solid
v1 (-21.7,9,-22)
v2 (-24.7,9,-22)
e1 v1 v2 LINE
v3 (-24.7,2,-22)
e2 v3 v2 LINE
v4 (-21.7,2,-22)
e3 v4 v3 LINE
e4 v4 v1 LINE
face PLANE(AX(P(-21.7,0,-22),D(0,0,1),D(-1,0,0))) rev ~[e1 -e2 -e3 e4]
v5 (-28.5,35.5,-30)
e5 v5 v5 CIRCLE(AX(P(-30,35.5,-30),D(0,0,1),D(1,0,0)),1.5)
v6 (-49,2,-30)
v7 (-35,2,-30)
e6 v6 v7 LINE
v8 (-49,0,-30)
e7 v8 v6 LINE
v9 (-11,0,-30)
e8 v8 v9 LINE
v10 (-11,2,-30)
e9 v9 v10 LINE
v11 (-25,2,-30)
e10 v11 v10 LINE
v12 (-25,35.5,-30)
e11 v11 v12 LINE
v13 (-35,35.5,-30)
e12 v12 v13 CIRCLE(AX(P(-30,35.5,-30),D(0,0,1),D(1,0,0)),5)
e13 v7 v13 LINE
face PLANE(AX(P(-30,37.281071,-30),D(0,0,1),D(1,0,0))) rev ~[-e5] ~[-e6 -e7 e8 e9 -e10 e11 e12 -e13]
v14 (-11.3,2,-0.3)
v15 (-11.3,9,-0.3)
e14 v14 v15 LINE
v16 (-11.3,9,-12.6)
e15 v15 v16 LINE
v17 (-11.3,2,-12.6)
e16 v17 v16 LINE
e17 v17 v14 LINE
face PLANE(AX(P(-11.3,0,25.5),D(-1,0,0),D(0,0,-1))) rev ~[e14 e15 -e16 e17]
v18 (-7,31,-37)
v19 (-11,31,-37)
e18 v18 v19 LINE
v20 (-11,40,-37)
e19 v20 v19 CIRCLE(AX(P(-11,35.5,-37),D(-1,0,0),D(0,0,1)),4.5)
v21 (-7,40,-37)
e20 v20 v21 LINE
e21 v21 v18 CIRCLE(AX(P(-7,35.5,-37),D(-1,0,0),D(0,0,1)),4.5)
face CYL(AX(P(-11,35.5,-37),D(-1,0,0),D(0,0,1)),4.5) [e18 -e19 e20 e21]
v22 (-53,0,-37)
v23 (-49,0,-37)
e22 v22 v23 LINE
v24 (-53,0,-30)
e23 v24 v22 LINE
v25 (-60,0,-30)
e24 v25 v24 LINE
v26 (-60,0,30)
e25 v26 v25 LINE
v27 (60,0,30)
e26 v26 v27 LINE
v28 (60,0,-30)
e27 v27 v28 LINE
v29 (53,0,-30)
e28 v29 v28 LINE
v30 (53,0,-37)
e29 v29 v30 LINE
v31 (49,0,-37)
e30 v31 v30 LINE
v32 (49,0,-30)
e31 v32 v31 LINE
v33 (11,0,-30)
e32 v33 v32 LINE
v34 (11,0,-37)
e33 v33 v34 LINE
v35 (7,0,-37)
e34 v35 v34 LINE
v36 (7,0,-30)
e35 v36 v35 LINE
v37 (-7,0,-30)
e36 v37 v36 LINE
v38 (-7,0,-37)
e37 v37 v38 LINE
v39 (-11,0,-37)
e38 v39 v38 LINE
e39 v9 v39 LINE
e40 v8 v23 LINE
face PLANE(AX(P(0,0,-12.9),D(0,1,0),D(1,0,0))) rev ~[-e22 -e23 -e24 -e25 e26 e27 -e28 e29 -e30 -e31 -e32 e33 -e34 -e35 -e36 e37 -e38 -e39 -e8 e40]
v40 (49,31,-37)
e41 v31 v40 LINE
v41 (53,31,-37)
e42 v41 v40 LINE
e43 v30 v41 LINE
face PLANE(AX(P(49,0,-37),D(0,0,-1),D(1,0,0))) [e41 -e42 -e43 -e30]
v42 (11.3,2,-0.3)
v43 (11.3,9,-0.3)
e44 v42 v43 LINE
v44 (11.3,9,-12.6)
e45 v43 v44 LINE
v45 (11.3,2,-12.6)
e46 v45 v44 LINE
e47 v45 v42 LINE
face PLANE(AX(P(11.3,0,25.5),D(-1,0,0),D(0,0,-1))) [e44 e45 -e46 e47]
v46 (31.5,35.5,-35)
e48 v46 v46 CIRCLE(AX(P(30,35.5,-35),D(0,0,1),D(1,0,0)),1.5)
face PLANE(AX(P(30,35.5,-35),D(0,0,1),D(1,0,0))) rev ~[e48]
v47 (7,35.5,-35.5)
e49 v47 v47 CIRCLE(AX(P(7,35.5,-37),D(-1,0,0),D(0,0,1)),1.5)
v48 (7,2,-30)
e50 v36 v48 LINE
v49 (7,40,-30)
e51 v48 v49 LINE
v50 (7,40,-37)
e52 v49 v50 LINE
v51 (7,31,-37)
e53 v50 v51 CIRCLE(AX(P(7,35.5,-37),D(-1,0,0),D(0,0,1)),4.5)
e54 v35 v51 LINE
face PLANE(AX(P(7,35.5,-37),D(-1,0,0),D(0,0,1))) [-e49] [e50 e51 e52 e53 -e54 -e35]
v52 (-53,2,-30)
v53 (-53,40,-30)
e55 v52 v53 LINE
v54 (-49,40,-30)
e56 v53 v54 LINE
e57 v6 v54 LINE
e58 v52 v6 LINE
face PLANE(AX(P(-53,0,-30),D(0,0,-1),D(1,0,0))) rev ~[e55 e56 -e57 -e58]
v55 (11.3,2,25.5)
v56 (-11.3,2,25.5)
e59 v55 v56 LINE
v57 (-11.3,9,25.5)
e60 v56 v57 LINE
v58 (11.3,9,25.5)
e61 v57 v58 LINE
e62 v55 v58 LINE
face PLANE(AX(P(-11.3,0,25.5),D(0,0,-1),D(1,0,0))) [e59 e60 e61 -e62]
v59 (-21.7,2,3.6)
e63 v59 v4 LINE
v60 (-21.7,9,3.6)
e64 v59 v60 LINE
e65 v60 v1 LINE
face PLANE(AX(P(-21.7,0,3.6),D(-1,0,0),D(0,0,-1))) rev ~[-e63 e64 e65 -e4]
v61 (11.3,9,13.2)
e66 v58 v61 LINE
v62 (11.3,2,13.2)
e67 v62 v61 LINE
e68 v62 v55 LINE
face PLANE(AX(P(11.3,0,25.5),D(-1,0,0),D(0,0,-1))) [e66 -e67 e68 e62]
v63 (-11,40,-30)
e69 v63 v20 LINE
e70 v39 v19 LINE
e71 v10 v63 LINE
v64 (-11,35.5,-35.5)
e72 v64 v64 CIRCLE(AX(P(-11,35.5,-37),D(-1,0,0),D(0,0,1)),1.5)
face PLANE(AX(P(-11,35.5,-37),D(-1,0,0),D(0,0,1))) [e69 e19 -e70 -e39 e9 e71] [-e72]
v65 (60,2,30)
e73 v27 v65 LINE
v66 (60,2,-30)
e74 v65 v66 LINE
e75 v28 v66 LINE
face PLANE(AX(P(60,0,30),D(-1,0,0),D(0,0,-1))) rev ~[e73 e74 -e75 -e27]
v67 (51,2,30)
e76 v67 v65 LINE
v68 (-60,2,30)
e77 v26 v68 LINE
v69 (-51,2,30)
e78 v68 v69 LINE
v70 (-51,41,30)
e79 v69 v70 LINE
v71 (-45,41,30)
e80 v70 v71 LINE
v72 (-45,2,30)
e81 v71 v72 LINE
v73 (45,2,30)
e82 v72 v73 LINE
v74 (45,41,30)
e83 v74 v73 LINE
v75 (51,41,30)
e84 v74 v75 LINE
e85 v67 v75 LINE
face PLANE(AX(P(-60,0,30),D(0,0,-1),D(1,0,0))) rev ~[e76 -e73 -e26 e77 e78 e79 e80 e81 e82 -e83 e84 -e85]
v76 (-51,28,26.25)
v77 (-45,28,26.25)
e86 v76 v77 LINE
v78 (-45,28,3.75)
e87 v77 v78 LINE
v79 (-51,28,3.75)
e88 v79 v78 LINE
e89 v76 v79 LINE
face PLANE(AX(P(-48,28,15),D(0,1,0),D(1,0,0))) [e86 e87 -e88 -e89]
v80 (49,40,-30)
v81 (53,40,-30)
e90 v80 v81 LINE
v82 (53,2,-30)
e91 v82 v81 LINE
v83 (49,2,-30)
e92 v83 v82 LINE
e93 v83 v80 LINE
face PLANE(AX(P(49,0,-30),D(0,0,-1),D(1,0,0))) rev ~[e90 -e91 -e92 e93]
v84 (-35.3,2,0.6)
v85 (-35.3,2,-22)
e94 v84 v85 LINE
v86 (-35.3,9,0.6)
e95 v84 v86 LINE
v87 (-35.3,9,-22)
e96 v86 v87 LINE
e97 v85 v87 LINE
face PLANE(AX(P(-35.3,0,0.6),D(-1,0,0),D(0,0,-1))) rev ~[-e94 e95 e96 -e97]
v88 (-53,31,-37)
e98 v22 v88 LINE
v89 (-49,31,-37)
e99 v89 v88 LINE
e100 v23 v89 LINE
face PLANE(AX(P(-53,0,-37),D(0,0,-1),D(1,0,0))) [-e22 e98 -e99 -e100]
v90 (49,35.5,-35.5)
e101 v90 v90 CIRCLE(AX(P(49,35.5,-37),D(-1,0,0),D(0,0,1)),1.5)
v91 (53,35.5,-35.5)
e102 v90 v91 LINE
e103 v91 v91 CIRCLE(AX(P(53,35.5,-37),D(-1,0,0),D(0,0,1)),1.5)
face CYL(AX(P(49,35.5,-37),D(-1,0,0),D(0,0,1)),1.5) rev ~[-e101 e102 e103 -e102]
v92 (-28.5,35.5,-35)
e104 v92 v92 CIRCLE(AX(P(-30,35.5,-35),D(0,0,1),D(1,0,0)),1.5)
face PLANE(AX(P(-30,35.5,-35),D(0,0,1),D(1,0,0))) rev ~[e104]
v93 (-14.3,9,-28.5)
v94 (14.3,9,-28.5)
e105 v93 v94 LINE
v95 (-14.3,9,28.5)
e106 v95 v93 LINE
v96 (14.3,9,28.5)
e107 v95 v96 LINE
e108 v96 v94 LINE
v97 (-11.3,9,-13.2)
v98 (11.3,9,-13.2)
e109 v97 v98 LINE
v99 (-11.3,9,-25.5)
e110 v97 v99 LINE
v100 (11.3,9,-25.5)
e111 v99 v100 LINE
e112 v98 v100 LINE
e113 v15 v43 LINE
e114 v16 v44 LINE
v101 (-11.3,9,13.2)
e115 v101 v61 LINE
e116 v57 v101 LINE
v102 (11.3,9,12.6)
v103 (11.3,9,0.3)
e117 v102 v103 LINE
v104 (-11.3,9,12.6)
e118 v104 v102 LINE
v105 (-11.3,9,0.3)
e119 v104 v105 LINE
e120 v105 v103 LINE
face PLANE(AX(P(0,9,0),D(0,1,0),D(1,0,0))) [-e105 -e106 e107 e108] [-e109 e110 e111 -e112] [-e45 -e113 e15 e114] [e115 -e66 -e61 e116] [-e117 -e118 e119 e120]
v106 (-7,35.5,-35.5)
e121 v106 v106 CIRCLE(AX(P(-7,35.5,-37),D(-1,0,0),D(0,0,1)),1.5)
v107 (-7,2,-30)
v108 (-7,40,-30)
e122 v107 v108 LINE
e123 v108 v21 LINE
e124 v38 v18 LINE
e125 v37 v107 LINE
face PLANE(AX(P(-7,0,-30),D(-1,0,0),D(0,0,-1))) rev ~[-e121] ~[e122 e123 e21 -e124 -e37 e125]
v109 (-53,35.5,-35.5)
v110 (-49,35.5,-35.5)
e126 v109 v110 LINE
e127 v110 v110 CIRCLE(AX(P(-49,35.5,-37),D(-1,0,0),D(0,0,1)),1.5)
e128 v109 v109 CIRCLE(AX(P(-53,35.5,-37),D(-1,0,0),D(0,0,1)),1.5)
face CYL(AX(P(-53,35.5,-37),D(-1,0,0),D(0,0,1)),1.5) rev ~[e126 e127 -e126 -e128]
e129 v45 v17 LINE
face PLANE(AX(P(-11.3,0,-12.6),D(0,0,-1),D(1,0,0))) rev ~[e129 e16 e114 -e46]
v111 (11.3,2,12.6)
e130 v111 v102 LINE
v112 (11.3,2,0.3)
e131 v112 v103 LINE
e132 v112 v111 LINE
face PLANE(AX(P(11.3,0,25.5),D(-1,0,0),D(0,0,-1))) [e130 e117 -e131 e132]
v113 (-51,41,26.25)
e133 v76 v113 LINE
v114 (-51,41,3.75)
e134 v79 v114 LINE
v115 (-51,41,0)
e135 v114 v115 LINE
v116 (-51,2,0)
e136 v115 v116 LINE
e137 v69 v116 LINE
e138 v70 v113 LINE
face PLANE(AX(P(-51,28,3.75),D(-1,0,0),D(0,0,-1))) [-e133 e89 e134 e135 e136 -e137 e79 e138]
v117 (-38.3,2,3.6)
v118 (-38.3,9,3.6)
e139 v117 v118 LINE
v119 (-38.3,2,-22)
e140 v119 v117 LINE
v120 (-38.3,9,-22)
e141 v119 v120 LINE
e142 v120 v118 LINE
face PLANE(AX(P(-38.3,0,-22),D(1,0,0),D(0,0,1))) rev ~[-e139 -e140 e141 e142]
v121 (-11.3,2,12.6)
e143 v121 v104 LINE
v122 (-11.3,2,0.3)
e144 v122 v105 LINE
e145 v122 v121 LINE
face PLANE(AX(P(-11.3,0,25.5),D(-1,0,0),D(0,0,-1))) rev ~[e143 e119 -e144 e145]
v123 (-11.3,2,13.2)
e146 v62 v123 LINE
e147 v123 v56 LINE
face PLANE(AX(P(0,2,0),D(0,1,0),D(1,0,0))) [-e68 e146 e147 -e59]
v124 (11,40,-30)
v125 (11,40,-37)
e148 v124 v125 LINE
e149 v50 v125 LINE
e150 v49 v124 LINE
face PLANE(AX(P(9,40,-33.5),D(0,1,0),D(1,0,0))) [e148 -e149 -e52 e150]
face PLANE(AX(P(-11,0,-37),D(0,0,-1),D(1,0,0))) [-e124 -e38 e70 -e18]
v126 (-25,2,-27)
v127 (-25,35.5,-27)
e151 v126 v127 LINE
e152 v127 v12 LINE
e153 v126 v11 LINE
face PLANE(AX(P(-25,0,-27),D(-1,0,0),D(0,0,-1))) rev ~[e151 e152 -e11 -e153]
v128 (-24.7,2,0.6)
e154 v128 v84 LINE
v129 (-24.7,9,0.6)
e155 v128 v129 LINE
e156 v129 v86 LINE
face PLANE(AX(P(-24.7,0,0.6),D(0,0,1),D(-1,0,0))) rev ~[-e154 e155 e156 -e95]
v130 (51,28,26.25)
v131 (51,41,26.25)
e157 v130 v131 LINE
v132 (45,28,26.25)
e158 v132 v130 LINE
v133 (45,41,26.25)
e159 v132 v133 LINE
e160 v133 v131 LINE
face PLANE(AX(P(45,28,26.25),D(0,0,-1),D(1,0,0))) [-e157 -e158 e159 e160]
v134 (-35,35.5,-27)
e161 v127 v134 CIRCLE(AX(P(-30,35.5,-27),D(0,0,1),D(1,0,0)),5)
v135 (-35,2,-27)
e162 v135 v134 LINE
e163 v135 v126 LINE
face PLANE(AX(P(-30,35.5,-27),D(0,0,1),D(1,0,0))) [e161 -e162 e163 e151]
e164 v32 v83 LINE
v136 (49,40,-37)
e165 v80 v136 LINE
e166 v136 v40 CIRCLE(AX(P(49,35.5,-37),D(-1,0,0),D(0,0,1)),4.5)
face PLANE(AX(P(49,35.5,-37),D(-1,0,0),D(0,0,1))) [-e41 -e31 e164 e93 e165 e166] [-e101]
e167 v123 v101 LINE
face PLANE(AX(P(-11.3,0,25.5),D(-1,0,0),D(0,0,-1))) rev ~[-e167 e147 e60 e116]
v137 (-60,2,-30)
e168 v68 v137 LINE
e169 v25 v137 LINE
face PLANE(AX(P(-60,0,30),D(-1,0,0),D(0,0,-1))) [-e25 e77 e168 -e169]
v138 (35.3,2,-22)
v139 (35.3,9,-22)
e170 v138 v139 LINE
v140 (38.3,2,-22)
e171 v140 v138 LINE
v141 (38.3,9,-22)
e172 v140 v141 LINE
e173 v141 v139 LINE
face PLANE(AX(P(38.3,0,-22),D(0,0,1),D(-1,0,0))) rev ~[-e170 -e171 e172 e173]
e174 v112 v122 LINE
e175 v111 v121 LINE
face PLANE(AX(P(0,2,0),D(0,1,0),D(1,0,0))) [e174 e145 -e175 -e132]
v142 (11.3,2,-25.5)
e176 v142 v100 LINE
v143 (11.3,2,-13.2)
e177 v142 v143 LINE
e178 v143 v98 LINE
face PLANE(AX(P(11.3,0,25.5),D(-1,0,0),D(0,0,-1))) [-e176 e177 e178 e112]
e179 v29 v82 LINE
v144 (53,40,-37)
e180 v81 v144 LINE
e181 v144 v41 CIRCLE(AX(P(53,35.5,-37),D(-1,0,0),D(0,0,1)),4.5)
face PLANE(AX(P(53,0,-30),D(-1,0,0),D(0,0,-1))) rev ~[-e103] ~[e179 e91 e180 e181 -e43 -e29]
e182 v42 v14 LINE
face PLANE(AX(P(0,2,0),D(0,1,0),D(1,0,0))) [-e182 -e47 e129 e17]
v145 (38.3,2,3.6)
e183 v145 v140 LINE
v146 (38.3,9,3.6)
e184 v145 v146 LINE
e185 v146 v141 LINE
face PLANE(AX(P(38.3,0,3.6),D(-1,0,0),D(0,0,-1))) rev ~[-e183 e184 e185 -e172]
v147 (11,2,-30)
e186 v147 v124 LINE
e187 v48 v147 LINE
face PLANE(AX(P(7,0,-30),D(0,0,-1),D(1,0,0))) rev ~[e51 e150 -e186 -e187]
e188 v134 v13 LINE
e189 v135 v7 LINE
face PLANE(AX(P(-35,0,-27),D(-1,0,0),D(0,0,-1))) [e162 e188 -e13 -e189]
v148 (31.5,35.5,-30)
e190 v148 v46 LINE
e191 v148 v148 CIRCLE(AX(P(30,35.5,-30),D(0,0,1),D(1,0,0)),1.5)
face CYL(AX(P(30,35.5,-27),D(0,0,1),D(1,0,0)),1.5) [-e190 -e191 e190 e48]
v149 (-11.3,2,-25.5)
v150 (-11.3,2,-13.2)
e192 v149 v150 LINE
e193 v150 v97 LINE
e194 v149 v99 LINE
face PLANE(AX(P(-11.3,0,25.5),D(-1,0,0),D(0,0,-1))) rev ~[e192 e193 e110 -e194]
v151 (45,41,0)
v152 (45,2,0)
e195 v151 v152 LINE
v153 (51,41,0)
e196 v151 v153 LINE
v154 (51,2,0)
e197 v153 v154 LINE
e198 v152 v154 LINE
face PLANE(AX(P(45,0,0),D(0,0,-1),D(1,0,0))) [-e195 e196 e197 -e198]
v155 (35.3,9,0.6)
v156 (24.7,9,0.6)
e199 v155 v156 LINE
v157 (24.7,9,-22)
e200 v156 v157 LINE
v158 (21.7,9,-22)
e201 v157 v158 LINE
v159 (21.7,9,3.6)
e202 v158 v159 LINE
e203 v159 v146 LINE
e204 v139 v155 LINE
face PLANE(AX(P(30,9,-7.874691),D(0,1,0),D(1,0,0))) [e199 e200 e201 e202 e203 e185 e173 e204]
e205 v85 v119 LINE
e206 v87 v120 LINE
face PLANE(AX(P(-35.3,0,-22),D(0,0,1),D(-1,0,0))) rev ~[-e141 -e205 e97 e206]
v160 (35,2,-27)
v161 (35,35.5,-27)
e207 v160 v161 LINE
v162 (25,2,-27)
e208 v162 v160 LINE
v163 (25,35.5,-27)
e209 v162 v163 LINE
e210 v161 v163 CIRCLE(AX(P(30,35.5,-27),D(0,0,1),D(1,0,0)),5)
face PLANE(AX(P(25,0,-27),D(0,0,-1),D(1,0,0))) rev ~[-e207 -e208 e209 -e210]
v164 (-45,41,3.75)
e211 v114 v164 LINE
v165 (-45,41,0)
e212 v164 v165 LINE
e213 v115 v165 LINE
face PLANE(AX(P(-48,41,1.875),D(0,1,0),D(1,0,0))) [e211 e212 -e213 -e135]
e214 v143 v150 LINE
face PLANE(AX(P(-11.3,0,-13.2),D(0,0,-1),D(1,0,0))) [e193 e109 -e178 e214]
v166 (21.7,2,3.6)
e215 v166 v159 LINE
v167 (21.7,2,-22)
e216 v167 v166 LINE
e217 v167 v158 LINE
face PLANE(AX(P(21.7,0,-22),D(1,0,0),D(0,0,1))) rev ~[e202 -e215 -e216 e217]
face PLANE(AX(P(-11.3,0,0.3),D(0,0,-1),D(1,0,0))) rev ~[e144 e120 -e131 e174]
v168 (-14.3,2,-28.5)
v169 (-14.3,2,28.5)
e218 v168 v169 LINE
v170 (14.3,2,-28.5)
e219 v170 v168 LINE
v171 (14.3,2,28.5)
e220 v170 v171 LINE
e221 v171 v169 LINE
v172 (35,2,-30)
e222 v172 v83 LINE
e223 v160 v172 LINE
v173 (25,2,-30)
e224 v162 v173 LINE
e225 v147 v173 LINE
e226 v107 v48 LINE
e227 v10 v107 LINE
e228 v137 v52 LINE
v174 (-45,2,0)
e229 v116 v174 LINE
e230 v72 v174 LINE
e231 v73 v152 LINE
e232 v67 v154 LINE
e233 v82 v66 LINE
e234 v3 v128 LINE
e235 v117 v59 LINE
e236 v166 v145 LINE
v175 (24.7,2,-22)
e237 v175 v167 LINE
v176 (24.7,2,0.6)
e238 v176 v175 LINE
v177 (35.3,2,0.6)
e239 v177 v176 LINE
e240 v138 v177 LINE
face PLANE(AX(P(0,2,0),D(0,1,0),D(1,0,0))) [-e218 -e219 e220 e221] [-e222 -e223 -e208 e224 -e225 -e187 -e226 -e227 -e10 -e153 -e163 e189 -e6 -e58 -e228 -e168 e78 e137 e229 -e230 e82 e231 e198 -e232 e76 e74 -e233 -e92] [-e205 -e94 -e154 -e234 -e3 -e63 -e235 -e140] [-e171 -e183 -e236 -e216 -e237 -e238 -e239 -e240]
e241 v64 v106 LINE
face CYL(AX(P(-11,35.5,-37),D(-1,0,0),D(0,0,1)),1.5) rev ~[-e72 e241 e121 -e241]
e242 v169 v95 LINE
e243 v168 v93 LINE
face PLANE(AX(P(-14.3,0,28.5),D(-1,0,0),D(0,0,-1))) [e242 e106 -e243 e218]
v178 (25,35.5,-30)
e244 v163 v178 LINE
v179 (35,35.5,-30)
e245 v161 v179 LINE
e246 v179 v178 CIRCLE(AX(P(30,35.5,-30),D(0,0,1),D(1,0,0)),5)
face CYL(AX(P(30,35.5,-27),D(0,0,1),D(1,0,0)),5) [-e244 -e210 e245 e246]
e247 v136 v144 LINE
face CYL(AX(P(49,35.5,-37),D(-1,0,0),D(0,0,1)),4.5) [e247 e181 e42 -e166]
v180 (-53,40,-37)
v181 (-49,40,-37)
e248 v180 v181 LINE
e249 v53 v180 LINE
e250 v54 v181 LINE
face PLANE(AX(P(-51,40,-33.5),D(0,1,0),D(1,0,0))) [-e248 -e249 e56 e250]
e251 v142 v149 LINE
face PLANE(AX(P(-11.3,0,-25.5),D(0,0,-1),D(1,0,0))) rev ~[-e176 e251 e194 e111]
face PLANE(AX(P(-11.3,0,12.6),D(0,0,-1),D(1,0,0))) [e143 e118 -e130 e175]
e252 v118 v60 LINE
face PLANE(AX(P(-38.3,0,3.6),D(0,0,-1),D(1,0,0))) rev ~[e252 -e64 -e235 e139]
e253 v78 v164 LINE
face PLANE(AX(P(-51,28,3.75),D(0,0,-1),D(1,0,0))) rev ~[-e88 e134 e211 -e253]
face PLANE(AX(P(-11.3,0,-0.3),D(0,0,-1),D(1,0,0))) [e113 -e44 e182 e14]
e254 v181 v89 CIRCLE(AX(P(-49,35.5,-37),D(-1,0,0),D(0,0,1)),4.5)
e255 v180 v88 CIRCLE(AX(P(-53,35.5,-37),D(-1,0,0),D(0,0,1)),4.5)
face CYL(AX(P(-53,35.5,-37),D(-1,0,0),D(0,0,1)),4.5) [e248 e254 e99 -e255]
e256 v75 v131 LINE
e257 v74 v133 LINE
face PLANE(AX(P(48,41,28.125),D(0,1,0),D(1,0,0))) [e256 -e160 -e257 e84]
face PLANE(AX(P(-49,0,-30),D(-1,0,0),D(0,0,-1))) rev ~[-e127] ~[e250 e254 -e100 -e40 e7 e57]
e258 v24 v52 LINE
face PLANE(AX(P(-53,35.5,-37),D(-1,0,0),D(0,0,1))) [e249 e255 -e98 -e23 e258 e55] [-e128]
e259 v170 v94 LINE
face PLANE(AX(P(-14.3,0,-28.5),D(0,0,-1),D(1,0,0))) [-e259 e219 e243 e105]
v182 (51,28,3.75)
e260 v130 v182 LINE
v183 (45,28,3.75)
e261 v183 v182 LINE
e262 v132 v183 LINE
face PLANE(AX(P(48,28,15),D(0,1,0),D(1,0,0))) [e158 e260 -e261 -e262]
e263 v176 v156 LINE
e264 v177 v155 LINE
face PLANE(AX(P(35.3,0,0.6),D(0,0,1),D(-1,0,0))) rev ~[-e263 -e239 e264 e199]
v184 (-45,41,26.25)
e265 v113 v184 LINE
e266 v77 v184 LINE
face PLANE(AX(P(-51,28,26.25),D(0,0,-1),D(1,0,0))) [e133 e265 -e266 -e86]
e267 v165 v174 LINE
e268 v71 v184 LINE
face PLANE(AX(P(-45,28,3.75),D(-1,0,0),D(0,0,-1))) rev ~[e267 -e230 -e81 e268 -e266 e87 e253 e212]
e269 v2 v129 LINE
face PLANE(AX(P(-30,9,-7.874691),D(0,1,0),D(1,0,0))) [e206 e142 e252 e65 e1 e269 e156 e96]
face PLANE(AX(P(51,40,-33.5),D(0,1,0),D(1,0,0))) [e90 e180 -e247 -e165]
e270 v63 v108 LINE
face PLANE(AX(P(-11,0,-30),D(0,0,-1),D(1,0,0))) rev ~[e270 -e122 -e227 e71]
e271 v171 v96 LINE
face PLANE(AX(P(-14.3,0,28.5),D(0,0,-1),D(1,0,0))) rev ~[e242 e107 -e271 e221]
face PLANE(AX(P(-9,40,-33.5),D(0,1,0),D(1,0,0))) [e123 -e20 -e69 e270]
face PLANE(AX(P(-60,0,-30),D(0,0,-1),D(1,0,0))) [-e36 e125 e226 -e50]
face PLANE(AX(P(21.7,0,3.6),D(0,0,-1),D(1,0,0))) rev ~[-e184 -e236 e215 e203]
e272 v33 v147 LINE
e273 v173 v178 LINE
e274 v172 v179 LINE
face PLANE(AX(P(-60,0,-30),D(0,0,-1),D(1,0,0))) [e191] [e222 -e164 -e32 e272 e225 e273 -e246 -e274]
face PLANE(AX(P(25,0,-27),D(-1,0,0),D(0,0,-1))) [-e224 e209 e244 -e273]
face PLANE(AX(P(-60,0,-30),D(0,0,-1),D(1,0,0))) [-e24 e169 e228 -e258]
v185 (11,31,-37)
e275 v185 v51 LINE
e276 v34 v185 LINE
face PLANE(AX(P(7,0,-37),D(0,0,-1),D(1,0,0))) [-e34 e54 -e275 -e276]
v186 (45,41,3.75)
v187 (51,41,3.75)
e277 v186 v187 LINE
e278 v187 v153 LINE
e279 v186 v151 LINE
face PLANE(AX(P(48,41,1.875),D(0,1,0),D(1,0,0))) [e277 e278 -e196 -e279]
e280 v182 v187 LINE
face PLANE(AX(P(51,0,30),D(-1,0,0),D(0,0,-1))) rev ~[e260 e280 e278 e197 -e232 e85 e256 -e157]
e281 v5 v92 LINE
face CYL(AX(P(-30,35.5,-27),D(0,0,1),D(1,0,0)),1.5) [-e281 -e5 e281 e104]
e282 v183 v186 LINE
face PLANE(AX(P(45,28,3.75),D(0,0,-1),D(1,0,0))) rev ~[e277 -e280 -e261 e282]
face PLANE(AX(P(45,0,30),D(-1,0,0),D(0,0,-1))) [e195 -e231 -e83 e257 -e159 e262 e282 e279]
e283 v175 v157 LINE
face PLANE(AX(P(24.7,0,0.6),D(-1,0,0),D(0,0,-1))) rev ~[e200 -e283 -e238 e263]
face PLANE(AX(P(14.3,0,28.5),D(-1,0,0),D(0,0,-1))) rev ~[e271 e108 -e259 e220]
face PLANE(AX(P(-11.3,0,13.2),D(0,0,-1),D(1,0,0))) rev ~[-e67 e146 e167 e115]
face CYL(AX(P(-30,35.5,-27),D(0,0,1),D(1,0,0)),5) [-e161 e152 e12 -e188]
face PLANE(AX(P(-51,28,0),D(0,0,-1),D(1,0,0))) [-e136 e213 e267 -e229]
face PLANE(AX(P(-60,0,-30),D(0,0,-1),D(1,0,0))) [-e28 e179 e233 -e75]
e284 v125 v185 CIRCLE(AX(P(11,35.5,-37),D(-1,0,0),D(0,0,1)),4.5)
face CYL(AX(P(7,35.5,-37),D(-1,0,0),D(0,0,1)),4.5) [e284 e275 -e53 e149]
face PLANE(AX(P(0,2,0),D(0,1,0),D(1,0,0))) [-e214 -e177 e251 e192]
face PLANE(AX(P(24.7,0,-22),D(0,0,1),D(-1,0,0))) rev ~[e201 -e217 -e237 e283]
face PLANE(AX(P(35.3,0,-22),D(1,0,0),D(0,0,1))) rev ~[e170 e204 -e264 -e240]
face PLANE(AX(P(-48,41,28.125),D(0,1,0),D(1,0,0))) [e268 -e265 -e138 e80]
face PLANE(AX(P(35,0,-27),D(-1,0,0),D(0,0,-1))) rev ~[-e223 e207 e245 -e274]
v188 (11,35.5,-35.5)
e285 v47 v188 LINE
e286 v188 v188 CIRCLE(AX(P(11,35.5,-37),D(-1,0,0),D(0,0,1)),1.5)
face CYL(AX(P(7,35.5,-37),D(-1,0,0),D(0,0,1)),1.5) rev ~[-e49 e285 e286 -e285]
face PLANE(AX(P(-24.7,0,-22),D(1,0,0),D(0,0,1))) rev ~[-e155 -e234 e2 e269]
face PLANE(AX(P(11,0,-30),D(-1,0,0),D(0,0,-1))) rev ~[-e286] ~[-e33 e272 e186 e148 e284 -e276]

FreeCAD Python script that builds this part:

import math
import FreeCAD as App
import Part
import Sketcher
from FreeCAD import Vector


def add_polygon(sketch, points):
    """Adds a closed chain of lines whose ends are joined by coincident constraints."""
    first, n = sketch.GeometryCount, len(points)
    for a, b in zip(points, points[1:] + points[:1]):
        sketch.addGeometry(Part.LineSegment(App.Vector(*a, 0), App.Vector(*b, 0)), False)
    for i in range(n):
        sketch.addConstraint(Sketcher.Constraint("Coincident", first + i, 2, first + (i + 1) % n, 1))

doc = App.newDocument("Part")
body = doc.addObject("PartDesign::Body", "Body")

sketch1 = body.newObject("Sketcher::SketchObject", "Sketch")
sketch1.AttachmentSupport = (doc.getObject("XZ_Plane"), [""])
sketch1.MapMode = "FlatFace"
add_polygon(sketch1, [(24.7, 0.6), (24.7, -22), (21.7, -22), (21.7, 3.6), (38.3, 3.6), (38.3, -22), (35.3, -22), (35.3, 0.6)])
sketch1.addConstraint(Sketcher.Constraint("Vertical", 0))
sketch1.addConstraint(Sketcher.Constraint("Horizontal", 1))
sketch1.addConstraint(Sketcher.Constraint("Vertical", 2))
sketch1.addConstraint(Sketcher.Constraint("Horizontal", 3))
sketch1.addConstraint(Sketcher.Constraint("Vertical", 4))
sketch1.addConstraint(Sketcher.Constraint("Horizontal", 5))
sketch1.addConstraint(Sketcher.Constraint("Vertical", 6))
sketch1.addConstraint(Sketcher.Constraint("Horizontal", 7))
sketch1.addConstraint(Sketcher.Constraint("Horizontal", 1, 2, 4, 2))
sketch1.addConstraint(Sketcher.Constraint("Equal", 1, 5))
sketch1.addConstraint(Sketcher.Constraint("DistanceX", 1, 2, 1, 1, 3.0))
sketch1.addConstraint(Sketcher.Constraint("DistanceX", 3, 1, 3, 2, 16.6))
sketch1.addConstraint(Sketcher.Constraint("DistanceY", 0, 2, 0, 1, 22.6))
sketch1.addConstraint(Sketcher.Constraint("DistanceY", 2, 1, 2, 2, 25.6))
sketch1.addConstraint(Sketcher.Constraint("DistanceY", 0, 2, -1, 1, 22.0))
sketch1.addConstraint(Sketcher.Constraint("DistanceX", -1, 1, 0, 2, 24.7))
pad1 = body.newObject("PartDesign::Pad", "Pad")
pad1.Profile = sketch1
pad1.Length = 9
pad1.Reversed = True
body2 = doc.addObject("PartDesign::Body", "Body001")

sketch2 = body2.newObject("Sketcher::SketchObject", "Sketch001")
sketch2.AttachmentSupport = (doc.getObject("XZ_Plane001"), [""])
sketch2.MapMode = "FlatFace"
add_polygon(sketch2, [(-35.3, -22), (-38.3, -22), (-38.3, 3.6), (-21.7, 3.6), (-21.7, -22), (-24.7, -22), (-24.7, 0.6), (-35.3, 0.6)])
sketch2.addConstraint(Sketcher.Constraint("Horizontal", 0))
sketch2.addConstraint(Sketcher.Constraint("Vertical", 1))
sketch2.addConstraint(Sketcher.Constraint("Horizontal", 2))
sketch2.addConstraint(Sketcher.Constraint("Vertical", 3))
sketch2.addConstraint(Sketcher.Constraint("Horizontal", 4))
sketch2.addConstraint(Sketcher.Constraint("Vertical", 5))
sketch2.addConstraint(Sketcher.Constraint("Horizontal", 6))
sketch2.addConstraint(Sketcher.Constraint("Vertical", 7))
sketch2.addConstraint(Sketcher.Constraint("Horizontal", 0, 2, 3, 2))
sketch2.addConstraint(Sketcher.Constraint("Equal", 0, 4))
sketch2.addConstraint(Sketcher.Constraint("DistanceX", 0, 2, 0, 1, 3.0))
sketch2.addConstraint(Sketcher.Constraint("DistanceX", 2, 1, 2, 2, 16.6))
sketch2.addConstraint(Sketcher.Constraint("DistanceY", 1, 1, 1, 2, 25.6))
sketch2.addConstraint(Sketcher.Constraint("DistanceY", 5, 1, 5, 2, 22.6))
sketch2.addConstraint(Sketcher.Constraint("DistanceY", 0, 2, -1, 1, 22.0))
sketch2.addConstraint(Sketcher.Constraint("DistanceX", 0, 2, -1, 1, 38.3))
pad2 = body2.newObject("PartDesign::Pad", "Pad001")
pad2.Profile = sketch2
pad2.Length = 9
pad2.Reversed = True
body3 = doc.addObject("PartDesign::Body", "Body002")

sketch3 = body3.newObject("Sketcher::SketchObject", "Sketch002")
sketch3.AttachmentSupport = (doc.getObject("XZ_Plane002"), [""])
sketch3.MapMode = "FlatFace"
add_polygon(sketch3, [(-51, 0), (-51, 30), (-45, 30), (-45, 0)])
sketch3.addConstraint(Sketcher.Constraint("Vertical", 0))
sketch3.addConstraint(Sketcher.Constraint("Horizontal", 1))
sketch3.addConstraint(Sketcher.Constraint("Vertical", 2))
sketch3.addConstraint(Sketcher.Constraint("Horizontal", 3))
sketch3.addConstraint(Sketcher.Constraint("PointOnObject", 2, 2, -1))
sketch3.addConstraint(Sketcher.Constraint("DistanceX", 1, 1, 1, 2, 6.0))
sketch3.addConstraint(Sketcher.Constraint("DistanceY", 0, 1, 0, 2, 30.0))
sketch3.addConstraint(Sketcher.Constraint("DistanceX", 0, 2, -1, 1, 51.0))
pad3 = body3.newObject("PartDesign::Pad", "Pad002")
pad3.Profile = sketch3
pad3.Length = 28
pad3.Reversed = True
body4 = doc.addObject("PartDesign::Body", "Body003")

sketch4 = body4.newObject("Sketcher::SketchObject", "Sketch003")
sketch4.AttachmentSupport = (doc.getObject("XZ_Plane003"), [""])
sketch4.MapMode = "FlatFace"
add_polygon(sketch4, [(45, 0), (45, 30), (51, 30), (51, 0)])
sketch4.addConstraint(Sketcher.Constraint("Vertical", 0))
sketch4.addConstraint(Sketcher.Constraint("Horizontal", 1))
sketch4.addConstraint(Sketcher.Constraint("Vertical", 2))
sketch4.addConstraint(Sketcher.Constraint("Horizontal", 3))
sketch4.addConstraint(Sketcher.Constraint("PointOnObject", 2, 2, -1))
sketch4.addConstraint(Sketcher.Constraint("DistanceX", 1, 1, 1, 2, 6.0))
sketch4.addConstraint(Sketcher.Constraint("DistanceY", 0, 1, 0, 2, 30.0))
sketch4.addConstraint(Sketcher.Constraint("DistanceX", -1, 1, 0, 2, 45.0))
pad4 = body4.newObject("PartDesign::Pad", "Pad003")
pad4.Profile = sketch4
pad4.Length = 28
pad4.Reversed = True
body5 = doc.addObject("PartDesign::Body", "Body004")

sketch5 = body5.newObject("Sketcher::SketchObject", "Sketch004")
sketch5.AttachmentSupport = (doc.getObject("XZ_Plane004"), [""])
sketch5.MapMode = "FlatFace"
add_polygon(sketch5, [(-53, -37), (-53, -30), (-49, -30), (-49, -37)])
sketch5.addConstraint(Sketcher.Constraint("Vertical", 0))
sketch5.addConstraint(Sketcher.Constraint("Horizontal", 1))
sketch5.addConstraint(Sketcher.Constraint("Vertical", 2))
sketch5.addConstraint(Sketcher.Constraint("Horizontal", 3))
sketch5.addConstraint(Sketcher.Constraint("DistanceX", 1, 1, 1, 2, 4.0))
sketch5.addConstraint(Sketcher.Constraint("DistanceY", 0, 1, 0, 2, 7.0))
sketch5.addConstraint(Sketcher.Constraint("DistanceX", 0, 2, -1, 1, 53.0))
sketch5.addConstraint(Sketcher.Constraint("DistanceY", 0, 2, -1, 1, 30.0))
pad5 = body5.newObject("PartDesign::Pad", "Pad004")
pad5.Profile = sketch5
pad5.Length = 40
pad5.Reversed = True
body6 = doc.addObject("PartDesign::Body", "Body005")

sketch6 = body6.newObject("Sketcher::SketchObject", "Sketch005")
sketch6.AttachmentSupport = (doc.getObject("XZ_Plane005"), [""])
sketch6.MapMode = "FlatFace"
add_polygon(sketch6, [(-11, -37), (-11, -30), (-7, -30), (-7, -37)])
sketch6.addConstraint(Sketcher.Constraint("Vertical", 0))
sketch6.addConstraint(Sketcher.Constraint("Horizontal", 1))
sketch6.addConstraint(Sketcher.Constraint("Vertical", 2))
sketch6.addConstraint(Sketcher.Constraint("Horizontal", 3))
sketch6.addConstraint(Sketcher.Constraint("DistanceX", 1, 1, 1, 2, 4.0))
sketch6.addConstraint(Sketcher.Constraint("DistanceY", 0, 1, 0, 2, 7.0))
sketch6.addConstraint(Sketcher.Constraint("DistanceX", 0, 2, -1, 1, 11.0))
sketch6.addConstraint(Sketcher.Constraint("DistanceY", 0, 2, -1, 1, 30.0))
pad6 = body6.newObject("PartDesign::Pad", "Pad005")
pad6.Profile = sketch6
pad6.Length = 40
pad6.Reversed = True
body7 = doc.addObject("PartDesign::Body", "Body006")

sketch7 = body7.newObject("Sketcher::SketchObject", "Sketch006")
sketch7.AttachmentSupport = (doc.getObject("XZ_Plane006"), [""])
sketch7.MapMode = "FlatFace"
add_polygon(sketch7, [(7, -37), (7, -30), (11, -30), (11, -37)])
sketch7.addConstraint(Sketcher.Constraint("Vertical", 0))
sketch7.addConstraint(Sketcher.Constraint("Horizontal", 1))
sketch7.addConstraint(Sketcher.Constraint("Vertical", 2))
sketch7.addConstraint(Sketcher.Constraint("Horizontal", 3))
sketch7.addConstraint(Sketcher.Constraint("DistanceX", 1, 1, 1, 2, 4.0))
sketch7.addConstraint(Sketcher.Constraint("DistanceY", 0, 1, 0, 2, 7.0))
sketch7.addConstraint(Sketcher.Constraint("DistanceX", -1, 1, 0, 2, 7.0))
sketch7.addConstraint(Sketcher.Constraint("DistanceY", 0, 2, -1, 1, 30.0))
pad7 = body7.newObject("PartDesign::Pad", "Pad006")
pad7.Profile = sketch7
pad7.Length = 40
pad7.Reversed = True
body8 = doc.addObject("PartDesign::Body", "Body007")

sketch8 = body8.newObject("Sketcher::SketchObject", "Sketch007")
sketch8.AttachmentSupport = (doc.getObject("XZ_Plane007"), [""])
sketch8.MapMode = "FlatFace"
add_polygon(sketch8, [(49, -37), (49, -30), (53, -30), (53, -37)])
sketch8.addConstraint(Sketcher.Constraint("Vertical", 0))
sketch8.addConstraint(Sketcher.Constraint("Horizontal", 1))
sketch8.addConstraint(Sketcher.Constraint("Vertical", 2))
sketch8.addConstraint(Sketcher.Constraint("Horizontal", 3))
sketch8.addConstraint(Sketcher.Constraint("DistanceX", 1, 1, 1, 2, 4.0))
sketch8.addConstraint(Sketcher.Constraint("DistanceY", 0, 1, 0, 2, 7.0))
sketch8.addConstraint(Sketcher.Constraint("DistanceX", -1, 1, 0, 2, 49.0))
sketch8.addConstraint(Sketcher.Constraint("DistanceY", 0, 2, -1, 1, 30.0))
pad8 = body8.newObject("PartDesign::Pad", "Pad007")
pad8.Profile = sketch8
pad8.Length = 40
pad8.Reversed = True
body9 = doc.addObject("PartDesign::Body", "Body008")

sketch9 = body9.newObject("Sketcher::SketchObject", "Sketch008")
sketch9.AttachmentSupport = (doc.getObject("XZ_Plane008"), [""])
sketch9.MapMode = "FlatFace"
add_polygon(sketch9, [(25, -30), (25, -27), (35, -27), (35, -30)])
sketch9.addConstraint(Sketcher.Constraint("Vertical", 0))
sketch9.addConstraint(Sketcher.Constraint("Horizontal", 1))
sketch9.addConstraint(Sketcher.Constraint("Vertical", 2))
sketch9.addConstraint(Sketcher.Constraint("Horizontal", 3))
sketch9.addConstraint(Sketcher.Constraint("DistanceX", 1, 1, 1, 2, 10.0))
sketch9.addConstraint(Sketcher.Constraint("DistanceY", 0, 1, 0, 2, 3.0))
sketch9.addConstraint(Sketcher.Constraint("DistanceX", -1, 1, 0, 2, 25.0))
sketch9.addConstraint(Sketcher.Constraint("DistanceY", 0, 2, -1, 1, 27.0))
pad9 = body9.newObject("PartDesign::Pad", "Pad008")
pad9.Profile = sketch9
pad9.Length = 35.5
pad9.Reversed = True
body10 = doc.addObject("PartDesign::Body", "Body009")

sketch10 = body10.newObject("Sketcher::SketchObject", "Sketch009")
sketch10.AttachmentSupport = (doc.getObject("XZ_Plane009"), [""])
sketch10.MapMode = "FlatFace"
add_polygon(sketch10, [(-35, -30), (-35, -27), (-25, -27), (-25, -30)])
sketch10.addConstraint(Sketcher.Constraint("Vertical", 0))
sketch10.addConstraint(Sketcher.Constraint("Horizontal", 1))
sketch10.addConstraint(Sketcher.Constraint("Vertical", 2))
sketch10.addConstraint(Sketcher.Constraint("Horizontal", 3))
sketch10.addConstraint(Sketcher.Constraint("DistanceX", 1, 1, 1, 2, 10.0))
sketch10.addConstraint(Sketcher.Constraint("DistanceY", 0, 1, 0, 2, 3.0))
sketch10.addConstraint(Sketcher.Constraint("DistanceX", 0, 2, -1, 1, 35.0))
sketch10.addConstraint(Sketcher.Constraint("DistanceY", 0, 2, -1, 1, 27.0))
pad10 = body10.newObject("PartDesign::Pad", "Pad009")
pad10.Profile = sketch10
pad10.Length = 35.5
pad10.Reversed = True
body.AllowCompound = True
doc.recompute()

boolean = body.newObject("PartDesign::Boolean", "Boolean")
boolean.Type = "Fuse"
boolean.addObjects([body2])
doc.recompute()

boolean2 = body.newObject("PartDesign::Boolean", "Boolean001")
boolean2.Type = "Fuse"
boolean2.addObjects([body3])
doc.recompute()

boolean3 = body.newObject("PartDesign::Boolean", "Boolean002")
boolean3.Type = "Fuse"
boolean3.addObjects([body4])
doc.recompute()

boolean4 = body.newObject("PartDesign::Boolean", "Boolean003")
boolean4.Type = "Fuse"
boolean4.addObjects([body5])
doc.recompute()

boolean5 = body.newObject("PartDesign::Boolean", "Boolean004")
boolean5.Type = "Fuse"
boolean5.addObjects([body6])
doc.recompute()

boolean6 = body.newObject("PartDesign::Boolean", "Boolean005")
boolean6.Type = "Fuse"
boolean6.addObjects([body7])
doc.recompute()

boolean7 = body.newObject("PartDesign::Boolean", "Boolean006")
boolean7.Type = "Fuse"
boolean7.addObjects([body8])
doc.recompute()

boolean8 = body.newObject("PartDesign::Boolean", "Boolean007")
boolean8.Type = "Fuse"
boolean8.addObjects([body9])
doc.recompute()

boolean9 = body.newObject("PartDesign::Boolean", "Boolean008")
boolean9.Type = "Fuse"
boolean9.addObjects([body10])

sketch11 = body.newObject("Sketcher::SketchObject", "Sketch010")
sketch11.AttachmentSupport = (doc.getObject("XZ_Plane"), [""])
sketch11.MapMode = "FlatFace"
add_polygon(sketch11, [(-60, -30), (-60, 30), (60, 30), (60, -30)])
sketch11.addConstraint(Sketcher.Constraint("Vertical", 0))
sketch11.addConstraint(Sketcher.Constraint("Horizontal", 1))
sketch11.addConstraint(Sketcher.Constraint("Vertical", 2))
sketch11.addConstraint(Sketcher.Constraint("Horizontal", 3))
sketch11.addConstraint(Sketcher.Constraint("Symmetric", 0, 2, 2, 2, -1, 1))
sketch11.addConstraint(Sketcher.Constraint("DistanceX", 1, 1, 1, 2, 120.0))
sketch11.addConstraint(Sketcher.Constraint("DistanceY", 0, 1, 0, 2, 60.0))
pad11 = body.newObject("PartDesign::Pad", "Pad010")
pad11.Profile = sketch11
pad11.Length = 2
pad11.Reversed = True

sketch12 = body.newObject("Sketcher::SketchObject", "Sketch011")
sketch12.AttachmentSupport = (doc.getObject("XZ_Plane"), [""])
sketch12.MapMode = "FlatFace"
add_polygon(sketch12, [(-14.3, -28.5), (-14.3, 28.5), (14.3, 28.5), (14.3, -28.5)])
add_polygon(sketch12, [(11.3, 25.5), (-11.3, 25.5), (-11.3, -25.5), (11.3, -25.5)])
sketch12.addConstraint(Sketcher.Constraint("Vertical", 0))
sketch12.addConstraint(Sketcher.Constraint("Horizontal", 1))
sketch12.addConstraint(Sketcher.Constraint("Vertical", 2))
sketch12.addConstraint(Sketcher.Constraint("Horizontal", 3))
sketch12.addConstraint(Sketcher.Constraint("Horizontal", 4))
sketch12.addConstraint(Sketcher.Constraint("Vertical", 5))
sketch12.addConstraint(Sketcher.Constraint("Horizontal", 6))
sketch12.addConstraint(Sketcher.Constraint("Vertical", 7))
sketch12.addConstraint(Sketcher.Constraint("Symmetric", 0, 2, 2, 2, -1, 1))
sketch12.addConstraint(Sketcher.Constraint("Symmetric", 4, 2, 6, 2, -1, 1))
sketch12.addConstraint(Sketcher.Constraint("DistanceY", 0, 1, 0, 2, 57.0))
sketch12.addConstraint(Sketcher.Constraint("DistanceY", 5, 2, 5, 1, 51.0))
sketch12.addConstraint(Sketcher.Constraint("DistanceX", 1, 1, 1, 2, 28.6))
sketch12.addConstraint(Sketcher.Constraint("DistanceX", 4, 2, 4, 1, 22.6))
pad12 = body.newObject("PartDesign::Pad", "Pad011")
pad12.Profile = sketch12
pad12.Length = 9
pad12.Reversed = True

sketch13 = body.newObject("Sketcher::SketchObject", "Sketch012")
sketch13.AttachmentSupport = (doc.getObject("XZ_Plane"), [""])
sketch13.MapMode = "FlatFace"
add_polygon(sketch13, [(-11.3, -13.2), (-11.3, -12.6), (11.3, -12.6), (11.3, -13.2)])
add_polygon(sketch13, [(-11.3, -0.3), (-11.3, 0.3), (11.3, 0.3), (11.3, -0.3)])
add_polygon(sketch13, [(-11.3, 12.6), (-11.3, 13.2), (11.3, 13.2), (11.3, 12.6)])
sketch13.addConstraint(Sketcher.Constraint("Vertical", 0))
sketch13.addConstraint(Sketcher.Constraint("Horizontal", 1))
sketch13.addConstraint(Sketcher.Constraint("Vertical", 2))
sketch13.addConstraint(Sketcher.Constraint("Horizontal", 3))
sketch13.addConstraint(Sketcher.Constraint("Vertical", 4))
sketch13.addConstraint(Sketcher.Constraint("Horizontal", 5))
sketch13.addConstraint(Sketcher.Constraint("Vertical", 6))
sketch13.addConstraint(Sketcher.Constraint("Horizontal", 7))
sketch13.addConstraint(Sketcher.Constraint("Vertical", 8))
sketch13.addConstraint(Sketcher.Constraint("Horizontal", 9))
sketch13.addConstraint(Sketcher.Constraint("Vertical", 10))
sketch13.addConstraint(Sketcher.Constraint("Horizontal", 11))
sketch13.addConstraint(Sketcher.Constraint("Symmetric", 4, 2, 6, 2, -1, 1))
sketch13.addConstraint(Sketcher.Constraint("Symmetric", 2, 2, 8, 2, -1, 1))
sketch13.addConstraint(Sketcher.Constraint("Symmetric", 0, 2, 10, 2, -1, 1))
sketch13.addConstraint(Sketcher.Constraint("Vertical", 3, 2, 4, 2))
sketch13.addConstraint(Sketcher.Constraint("Vertical", 2, 2, 5, 2))
sketch13.addConstraint(Sketcher.Constraint("Equal", 2, 4))
sketch13.addConstraint(Sketcher.Constraint("DistanceX", 1, 1, 1, 2, 22.6))
sketch13.addConstraint(Sketcher.Constraint("DistanceY", 0, 1, 0, 2, 0.6))
sketch13.addConstraint(Sketcher.Constraint("DistanceY", 0, 2, -1, 1, 12.6))
pad13 = body.newObject("PartDesign::Pad", "Pad012")
pad13.Profile = sketch13
pad13.Length = 9
pad13.Reversed = True

sketch14 = body.newObject("Sketcher::SketchObject", "Sketch013")
sketch14.AttachmentSupport = (doc.getObject("XZ_Plane"), [""])
sketch14.MapMode = "FlatFace"
sketch14.AttachmentOffset = App.Placement(Vector(0, 0, -28), App.Rotation())
add_polygon(sketch14, [(-51, 0), (-51, 3.75), (-45, 3.75), (-45, 0)])
add_polygon(sketch14, [(-51, 26.25), (-51, 30), (-45, 30), (-45, 26.25)])
add_polygon(sketch14, [(45, 0), (45, 3.75), (51, 3.75), (51, 0)])
add_polygon(sketch14, [(45, 26.25), (45, 30), (51, 30), (51, 26.25)])
sketch14.addConstraint(Sketcher.Constraint("Vertical", 0))
sketch14.addConstraint(Sketcher.Constraint("Horizontal", 1))
sketch14.addConstraint(Sketcher.Constraint("Vertical", 2))
sketch14.addConstraint(Sketcher.Constraint("Horizontal", 3))
sketch14.addConstraint(Sketcher.Constraint("Vertical", 4))
sketch14.addConstraint(Sketcher.Constraint("Horizontal", 5))
sketch14.addConstraint(Sketcher.Constraint("Vertical", 6))
sketch14.addConstraint(Sketcher.Constraint("Horizontal", 7))
sketch14.addConstraint(Sketcher.Constraint("Vertical", 8))
sketch14.addConstraint(Sketcher.Constraint("Horizontal", 9))
sketch14.addConstraint(Sketcher.Constraint("Vertical", 10))
sketch14.addConstraint(Sketcher.Constraint("Horizontal", 11))
sketch14.addConstraint(Sketcher.Constraint("Vertical", 12))
sketch14.addConstraint(Sketcher.Constraint("Horizontal", 13))
sketch14.addConstraint(Sketcher.Constraint("Vertical", 14))
sketch14.addConstraint(Sketcher.Constraint("Horizontal", 15))
sketch14.addConstraint(Sketcher.Constraint("Symmetric", 3, 2, 10, 2, -1, 1))
sketch14.addConstraint(Sketcher.Constraint("Symmetric", 1, 2, 8, 2, -2))
sketch14.addConstraint(Sketcher.Constraint("Symmetric", 5, 2, 12, 2, -2))
sketch14.addConstraint(Sketcher.Constraint("Symmetric", 7, 2, 14, 2, -2))
sketch14.addConstraint(Sketcher.Constraint("PointOnObject", 2, 2, -1))
sketch14.addConstraint(Sketcher.Constraint("Vertical", 3, 2, 4, 2))
sketch14.addConstraint(Sketcher.Constraint("Vertical", 2, 2, 5, 2))
sketch14.addConstraint(Sketcher.Constraint("Equal", 2, 4))
sketch14.addConstraint(Sketcher.Constraint("DistanceX", 1, 1, 1, 2, 6.0))
sketch14.addConstraint(Sketcher.Constraint("DistanceX", 0, 2, -1, 1, 51.0))
sketch14.addConstraint(Sketcher.Constraint("DistanceY", -1, 1, 4, 2, 30.0))
sketch14.addConstraint(Sketcher.Constraint("DistanceY", 0, 1, 0, 2, 3.75))
pad14 = body.newObject("PartDesign::Pad", "Pad013")
pad14.Profile = sketch14
pad14.Length = 13
pad14.Reversed = True

sketch15 = body.newObject("Sketcher::SketchObject", "Sketch014")
sketch15.AttachmentSupport = (doc.getObject("XY_Plane"), [""])
sketch15.MapMode = "FlatFace"
sketch15.AttachmentOffset = App.Placement(Vector(0, 0, -27), App.Rotation())
sketch15.addGeometry(Part.ArcOfCircle(Part.Circle(Vector(-30, 35.5, 0), Vector(0, 0, 1), 1.5), math.radians(0), math.radians(180)), False)
sketch15.addGeometry(Part.LineSegment(Vector(-28.5, 35.5, 0), Vector(-25, 35.5, 0)), False)
sketch15.addGeometry(Part.ArcOfCircle(Part.Circle(Vector(-30, 35.5, 0), Vector(0, 0, 1), 5), math.radians(0), math.radians(180)), False)
sketch15.addGeometry(Part.LineSegment(Vector(-35, 35.5, 0), Vector(-31.5, 35.5, 0)), False)
sketch15.addGeometry(Part.ArcOfCircle(Part.Circle(Vector(30, 35.5, 0), Vector(0, 0, 1), 1.5), math.radians(0), math.radians(180)), False)
sketch15.addGeometry(Part.LineSegment(Vector(31.5, 35.5, 0), Vector(35, 35.5, 0)), False)
sketch15.addGeometry(Part.ArcOfCircle(Part.Circle(Vector(30, 35.5, 0), Vector(0, 0, 1), 5), math.radians(0), math.radians(180)), False)
sketch15.addGeometry(Part.LineSegment(Vector(25, 35.5, 0), Vector(28.5, 35.5, 0)), False)
sketch15.addConstraint(Sketcher.Constraint("Coincident", 0, 1, 1, 1))
sketch15.addConstraint(Sketcher.Constraint("Coincident", 1, 2, 2, 1))
sketch15.addConstraint(Sketcher.Constraint("Coincident", 2, 2, 3, 1))
sketch15.addConstraint(Sketcher.Constraint("Coincident", 3, 2, 0, 2))
sketch15.addConstraint(Sketcher.Constraint("Coincident", 4, 1, 5, 1))
sketch15.addConstraint(Sketcher.Constraint("Coincident", 5, 2, 6, 1))
sketch15.addConstraint(Sketcher.Constraint("Coincident", 6, 2, 7, 1))
sketch15.addConstraint(Sketcher.Constraint("Coincident", 7, 2, 4, 2))
sketch15.addConstraint(Sketcher.Constraint("Horizontal", 1))
sketch15.addConstraint(Sketcher.Constraint("Horizontal", 3))
sketch15.addConstraint(Sketcher.Constraint("Horizontal", 5))
sketch15.addConstraint(Sketcher.Constraint("Horizontal", 7))
sketch15.addConstraint(Sketcher.Constraint("Coincident", 2, 3, 0, 3))
sketch15.addConstraint(Sketcher.Constraint("Coincident", 6, 3, 4, 3))
sketch15.addConstraint(Sketcher.Constraint("Equal", 0, 4))
sketch15.addConstraint(Sketcher.Constraint("Equal", 2, 6))
sketch15.addConstraint(Sketcher.Constraint("Symmetric", 0, 3, 4, 3, -2))
sketch15.addConstraint(Sketcher.Constraint("Horizontal", 6, 3, 0, 1))
sketch15.addConstraint(Sketcher.Constraint("Horizontal", 1, 2, 2, 2))
sketch15.addConstraint(Sketcher.Constraint("Horizontal", 3, 2, 4, 1))
sketch15.addConstraint(Sketcher.Constraint("Horizontal", 5, 2, 6, 2))
sketch15.addConstraint(Sketcher.Constraint("Radius", 2, 5.0))
sketch15.addConstraint(Sketcher.Constraint("Radius", 0, 1.5))
sketch15.addConstraint(Sketcher.Constraint("DistanceX", 0, 3, -1, 1, 30.0))
sketch15.addConstraint(Sketcher.Constraint("DistanceY", -1, 1, 0, 3, 35.5))
pad15 = body.newObject("PartDesign::Pad", "Pad014")
pad15.Profile = sketch15
pad15.Length = 3
pad15.Reversed = True

sketch16 = body.newObject("Sketcher::SketchObject", "Sketch015")
sketch16.AttachmentSupport = (doc.getObject("XY_Plane"), [""])
sketch16.MapMode = "FlatFace"
sketch16.AttachmentOffset = App.Placement(Vector(0, 0, -27), App.Rotation())
sketch16.addGeometry(Part.Circle(Vector(-30, 35.5, 0), Vector(0, 0, 1), 1.5), False)
sketch16.addGeometry(Part.Circle(Vector(30, 35.5, 0), Vector(0, 0, 1), 1.5), False)
sketch16.addConstraint(Sketcher.Constraint("Equal", 0, 1))
sketch16.addConstraint(Sketcher.Constraint("Symmetric", 0, 3, 1, 3, -2))
sketch16.addConstraint(Sketcher.Constraint("Diameter", 0, 3.0))
sketch16.addConstraint(Sketcher.Constraint("DistanceX", 0, 3, -1, 1, 30.0))
sketch16.addConstraint(Sketcher.Constraint("DistanceY", -1, 1, 0, 3, 35.5))
pad16 = body.newObject("PartDesign::Pad", "Pad015")
pad16.Profile = sketch16
pad16.Length = 8
pad16.Reversed = True

sketch17 = body.newObject("Sketcher::SketchObject", "Sketch016")
sketch17.AttachmentSupport = (doc.getObject("YZ_Plane"), [""])
sketch17.MapMode = "FlatFace"
sketch17.AttachmentOffset = App.Placement(Vector(0, 0, -53), App.Rotation())
sketch17.addGeometry(Part.Circle(Vector(35.5, -37, 0), Vector(0, 0, 1), 4.5), False)
sketch17.addGeometry(Part.Circle(Vector(35.5, -37, 0), Vector(0, 0, 1), 1.5), False)
sketch17.addConstraint(Sketcher.Constraint("Coincident", 1, 3, 0, 3))
sketch17.addConstraint(Sketcher.Constraint("Diameter", 0, 9.0))
sketch17.addConstraint(Sketcher.Constraint("Diameter", 1, 3.0))
sketch17.addConstraint(Sketcher.Constraint("DistanceY", 0, 3, -1, 1, 37.0))
sketch17.addConstraint(Sketcher.Constraint("DistanceX", -1, 1, 0, 3, 35.5))
pad17 = body.newObject("PartDesign::Pad", "Pad016")
pad17.Profile = sketch17
pad17.Length = 4

sketch18 = body.newObject("Sketcher::SketchObject", "Sketch017")
sketch18.AttachmentSupport = (doc.getObject("YZ_Plane"), [""])
sketch18.MapMode = "FlatFace"
sketch18.AttachmentOffset = App.Placement(Vector(0, 0, -53), App.Rotation())
sketch18.addGeometry(Part.Circle(Vector(35.5, -37, 0), Vector(0, 0, 1), 1.5), False)
sketch18.addConstraint(Sketcher.Constraint("Diameter", 0, 3.0))
sketch18.addConstraint(Sketcher.Constraint("DistanceY", 0, 3, -1, 1, 37.0))
sketch18.addConstraint(Sketcher.Constraint("DistanceX", -1, 1, 0, 3, 35.5))
pocket1 = body.newObject("PartDesign::Pocket", "Pocket")
pocket1.Profile = sketch18
pocket1.Length = 4
pocket1.Reversed = True

sketch19 = body.newObject("Sketcher::SketchObject", "Sketch018")
sketch19.AttachmentSupport = (doc.getObject("YZ_Plane"), [""])
sketch19.MapMode = "FlatFace"
sketch19.AttachmentOffset = App.Placement(Vector(0, 0, -11), App.Rotation())
sketch19.addGeometry(Part.Circle(Vector(35.5, -37, 0), Vector(0, 0, 1), 4.5), False)
sketch19.addGeometry(Part.Circle(Vector(35.5, -37, 0), Vector(0, 0, 1), 1.5), False)
sketch19.addConstraint(Sketcher.Constraint("Coincident", 1, 3, 0, 3))
sketch19.addConstraint(Sketcher.Constraint("Diameter", 0, 9.0))
sketch19.addConstraint(Sketcher.Constraint("Diameter", 1, 3.0))
sketch19.addConstraint(Sketcher.Constraint("DistanceY", 0, 3, -1, 1, 37.0))
sketch19.addConstraint(Sketcher.Constraint("DistanceX", -1, 1, 0, 3, 35.5))
pad18 = body.newObject("PartDesign::Pad", "Pad017")
pad18.Profile = sketch19
pad18.Length = 4

sketch20 = body.newObject("Sketcher::SketchObject", "Sketch019")
sketch20.AttachmentSupport = (doc.getObject("YZ_Plane"), [""])
sketch20.MapMode = "FlatFace"
sketch20.AttachmentOffset = App.Placement(Vector(0, 0, -11), App.Rotation())
sketch20.addGeometry(Part.Circle(Vector(35.5, -37, 0), Vector(0, 0, 1), 1.5), False)
sketch20.addConstraint(Sketcher.Constraint("Diameter", 0, 3.0))
sketch20.addConstraint(Sketcher.Constraint("DistanceY", 0, 3, -1, 1, 37.0))
sketch20.addConstraint(Sketcher.Constraint("DistanceX", -1, 1, 0, 3, 35.5))
pocket2 = body.newObject("PartDesign::Pocket", "Pocket001")
pocket2.Profile = sketch20
pocket2.Length = 4
pocket2.Reversed = True

sketch21 = body.newObject("Sketcher::SketchObject", "Sketch020")
sketch21.AttachmentSupport = (doc.getObject("YZ_Plane"), [""])
sketch21.MapMode = "FlatFace"
sketch21.AttachmentOffset = App.Placement(Vector(0, 0, 7), App.Rotation())
sketch21.addGeometry(Part.Circle(Vector(35.5, -37, 0), Vector(0, 0, 1), 4.5), False)
sketch21.addGeometry(Part.Circle(Vector(35.5, -37, 0), Vector(0, 0, 1), 1.5), False)
sketch21.addConstraint(Sketcher.Constraint("Coincident", 1, 3, 0, 3))
sketch21.addConstraint(Sketcher.Constraint("Diameter", 0, 9.0))
sketch21.addConstraint(Sketcher.Constraint("Diameter", 1, 3.0))
sketch21.addConstraint(Sketcher.Constraint("DistanceY", 0, 3, -1, 1, 37.0))
sketch21.addConstraint(Sketcher.Constraint("DistanceX", -1, 1, 0, 3, 35.5))
pad19 = body.newObject("PartDesign::Pad", "Pad018")
pad19.Profile = sketch21
pad19.Length = 4

sketch22 = body.newObject("Sketcher::SketchObject", "Sketch021")
sketch22.AttachmentSupport = (doc.getObject("YZ_Plane"), [""])
sketch22.MapMode = "FlatFace"
sketch22.AttachmentOffset = App.Placement(Vector(0, 0, 7), App.Rotation())
sketch22.addGeometry(Part.Circle(Vector(35.5, -37, 0), Vector(0, 0, 1), 1.5), False)
sketch22.addConstraint(Sketcher.Constraint("Diameter", 0, 3.0))
sketch22.addConstraint(Sketcher.Constraint("DistanceY", 0, 3, -1, 1, 37.0))
sketch22.addConstraint(Sketcher.Constraint("DistanceX", -1, 1, 0, 3, 35.5))
pocket3 = body.newObject("PartDesign::Pocket", "Pocket002")
pocket3.Profile = sketch22
pocket3.Length = 4
pocket3.Reversed = True

sketch23 = body.newObject("Sketcher::SketchObject", "Sketch022")
sketch23.AttachmentSupport = (doc.getObject("YZ_Plane"), [""])
sketch23.MapMode = "FlatFace"
sketch23.AttachmentOffset = App.Placement(Vector(0, 0, 49), App.Rotation())
sketch23.addGeometry(Part.Circle(Vector(35.5, -37, 0), Vector(0, 0, 1), 4.5), False)
sketch23.addGeometry(Part.Circle(Vector(35.5, -37, 0), Vector(0, 0, 1), 1.5), False)
sketch23.addConstraint(Sketcher.Constraint("Coincident", 1, 3, 0, 3))
sketch23.addConstraint(Sketcher.Constraint("Diameter", 0, 9.0))
sketch23.addConstraint(Sketcher.Constraint("Diameter", 1, 3.0))
sketch23.addConstraint(Sketcher.Constraint("DistanceY", 0, 3, -1, 1, 37.0))
sketch23.addConstraint(Sketcher.Constraint("DistanceX", -1, 1, 0, 3, 35.5))
pad20 = body.newObject("PartDesign::Pad", "Pad019")
pad20.Profile = sketch23
pad20.Length = 4

sketch24 = body.newObject("Sketcher::SketchObject", "Sketch023")
sketch24.AttachmentSupport = (doc.getObject("YZ_Plane"), [""])
sketch24.MapMode = "FlatFace"
sketch24.AttachmentOffset = App.Placement(Vector(0, 0, 49), App.Rotation())
sketch24.addGeometry(Part.Circle(Vector(35.5, -37, 0), Vector(0, 0, 1), 1.5), False)
sketch24.addConstraint(Sketcher.Constraint("Diameter", 0, 3.0))
sketch24.addConstraint(Sketcher.Constraint("DistanceY", 0, 3, -1, 1, 37.0))
sketch24.addConstraint(Sketcher.Constraint("DistanceX", -1, 1, 0, 3, 35.5))
pocket4 = body.newObject("PartDesign::Pocket", "Pocket003")
pocket4.Profile = sketch24
pocket4.Length = 4
pocket4.Reversed = True

doc.recompute()
